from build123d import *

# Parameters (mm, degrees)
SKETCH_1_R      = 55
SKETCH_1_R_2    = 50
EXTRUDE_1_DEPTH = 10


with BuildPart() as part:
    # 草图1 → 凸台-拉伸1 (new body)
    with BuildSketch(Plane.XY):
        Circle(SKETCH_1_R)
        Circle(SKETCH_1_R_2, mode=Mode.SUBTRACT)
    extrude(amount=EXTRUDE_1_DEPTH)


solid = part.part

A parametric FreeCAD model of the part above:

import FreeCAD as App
import Part
import Sketcher
Q = App.Units.Quantity

doc = App.newDocument("Part")
params = doc.addObject("Spreadsheet::Sheet", "Params")
for row, (alias, value) in enumerate([
    ("sketch1_diameter", "110 mm"),
    ("sketch1_diameter2", "100 mm"),
    ("pad1_length", "10 mm"),
], start=1):
    params.set(f"A{row}", alias)
    params.set(f"B{row}", "=" + value)
    params.setAlias(f"B{row}", alias)

body = doc.addObject("PartDesign::Body", "Body")

# Sketch on XY plane
sketch1 = body.newObject("Sketcher::SketchObject", "Sketch")
sketch1.AttachmentSupport = (doc.getObject("XY_Plane"), [""])
sketch1.MapMode = "FlatFace"
sketch1.addGeometry([
    Part.Circle(App.Vector(0, 0, 0), App.Vector(0, 0, 1), 55),
    Part.Circle(App.Vector(0, 0, 0), App.Vector(0, 0, 1), 50),
], False)
sketch1.addConstraint([
    Sketcher.Constraint("Coincident", 0, 3, -1, 1),
    Sketcher.Constraint("Coincident", 1, 3, -1, 1),
    Sketcher.Constraint("Diameter", 0, Q("110 mm")),
    Sketcher.Constraint("Diameter", 1, Q("100 mm")),
])
sketch1.setExpression("Constraints[2]", "Params.sketch1_diameter")
sketch1.setExpression("Constraints[3]", "Params.sketch1_diameter2")
pad1 = body.newObject("PartDesign::Pad", "Pad")
pad1.Profile = sketch1
pad1.setExpression("Length", "Params.pad1_length")

doc.recompute()
